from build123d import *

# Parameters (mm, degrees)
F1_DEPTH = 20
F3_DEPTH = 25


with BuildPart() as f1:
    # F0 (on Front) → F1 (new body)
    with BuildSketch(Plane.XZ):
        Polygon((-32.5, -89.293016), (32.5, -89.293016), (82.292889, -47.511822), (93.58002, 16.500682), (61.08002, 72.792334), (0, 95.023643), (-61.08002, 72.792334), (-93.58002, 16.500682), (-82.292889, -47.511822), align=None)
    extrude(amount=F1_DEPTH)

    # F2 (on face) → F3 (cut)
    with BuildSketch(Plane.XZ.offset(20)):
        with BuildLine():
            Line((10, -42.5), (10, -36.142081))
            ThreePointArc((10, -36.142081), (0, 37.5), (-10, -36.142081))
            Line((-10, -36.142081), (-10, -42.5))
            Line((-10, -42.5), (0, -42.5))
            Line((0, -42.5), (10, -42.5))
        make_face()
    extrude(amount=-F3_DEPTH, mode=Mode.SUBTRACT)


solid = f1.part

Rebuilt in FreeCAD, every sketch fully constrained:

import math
import FreeCAD as App
import Part
import Sketcher

V = App.Vector
Q = App.Units.Quantity

doc = App.newDocument("Part")
body = doc.addObject("PartDesign::Body", "Body")

# Sketch on XZ plane
sketch1 = doc.addObject("Sketcher::SketchObject", "Sketch")
body.addObject(sketch1)
sketch1.AttachmentSupport = (doc.XZ_Plane, [""])
sketch1.MapMode = "FlatFace"
sketch1.addGeometry([
    Part.LineSegment(V(-32, -89, 0), V(32, -89, 0)),  # 0
    Part.LineSegment(V(32, -89, 0), V(82, -48, 0)),  # 1
    Part.LineSegment(V(82, -48, 0), V(94, 17, 0)),  # 2
    Part.LineSegment(V(94, 17, 0), V(61, 73, 0)),  # 3
    Part.LineSegment(V(61, 73, 0), V(0, 95, 0)),  # 4
    Part.LineSegment(V(0, 95, 0), V(-61, 73, 0)),  # 5
    Part.LineSegment(V(-61, 73, 0), V(-94, 17, 0)),  # 6
    Part.LineSegment(V(-94, 17, 0), V(-82, -48, 0)),  # 7
    Part.LineSegment(V(-82, -48, 0), V(-32, -89, 0)),  # 8
], False)
sketch1.addConstraint([
    Sketcher.Constraint("Coincident", 0, 2, 1, 1),
    Sketcher.Constraint("Coincident", 1, 2, 2, 1),
    Sketcher.Constraint("Coincident", 2, 2, 3, 1),
    Sketcher.Constraint("Coincident", 3, 2, 4, 1),
    Sketcher.Constraint("Coincident", 4, 2, 5, 1),
    Sketcher.Constraint("Coincident", 5, 2, 6, 1),
    Sketcher.Constraint("Coincident", 6, 2, 7, 1),
    Sketcher.Constraint("Coincident", 7, 2, 8, 1),
    Sketcher.Constraint("Coincident", 8, 2, 0, 1),
    Sketcher.Constraint("Horizontal", 0),
    Sketcher.Constraint("Symmetric", 3, 2, 5, 2, -2),
    Sketcher.Constraint("Symmetric", 2, 2, 6, 2, -2),
    Sketcher.Constraint("Symmetric", 1, 2, 7, 2, -2),
    Sketcher.Constraint("PointOnObject", 4, 2, -2),
    Sketcher.Constraint("Equal", 1, 2),
    Sketcher.Constraint("Equal", 2, 3),
    Sketcher.Constraint("Equal", 3, 4),
    Sketcher.Constraint("Equal", 7, 8),
    Sketcher.Constraint("DistanceX", 0, 1, 0, 2, Q("65 mm")),
    Sketcher.Constraint("Angle", 1, Q("39.999999 deg")),
    Sketcher.Constraint("Angle", 2, Q("80 deg")),
    Sketcher.Constraint("Angle", 3, Q("120 deg")),
    Sketcher.Constraint("Angle", 4, Q("160 deg")),
    Sketcher.Constraint("DistanceY", 0, 2, -1, 1, Q("89.293016 mm")),
])
pad1 = doc.addObject("PartDesign::Pad", "Pad")
body.addObject(pad1)
pad1.Profile = sketch1
pad1.Length = 20

# Sketch on XZ plane
sketch2 = doc.addObject("Sketcher::SketchObject", "Sketch001")
body.addObject(sketch2)
sketch2.AttachmentSupport = (doc.XZ_Plane, [""])
sketch2.MapMode = "FlatFace"
sketch2.AttachmentOffset = App.Placement(V(0, 0, 20), App.Rotation())
sketch2.addGeometry([
    Part.LineSegment(V(10, -42, 0), V(10, -36, 0)),
    Part.ArcOfCircle(Part.Circle(V(0, 0, 0), V(0, 0, 1), 38), math.radians(-75), math.radians(255)),
    Part.LineSegment(V(-10, -36, 0), V(-10, -42, 0)),
    Part.LineSegment(V(-10, -42, 0), V(10, -42, 0)),
], False)
sketch2.addConstraint([
    Sketcher.Constraint("Coincident", 0, 2, 1, 1),
    Sketcher.Constraint("Coincident", 1, 2, 2, 1),
    Sketcher.Constraint("Coincident", 2, 2, 3, 1),
    Sketcher.Constraint("Coincident", 3, 2, 0, 1),
    Sketcher.Constraint("Vertical", 0),
    Sketcher.Constraint("Vertical", 2),
    Sketcher.Constraint("Horizontal", 3),
    Sketcher.Constraint("Coincident", 1, 3, -1, 1),
    Sketcher.Constraint("Horizontal", 0, 2, 1, 2),
    Sketcher.Constraint("Radius", 1, Q("37.5 mm")),
    Sketcher.Constraint("DistanceX", 3, 1, 3, 2, Q("20 mm")),
    Sketcher.Constraint("DistanceY", 2, 2, -1, 1, Q("42.5 mm")),
])
pocket1 = doc.addObject("PartDesign::Pocket", "Pocket")
body.addObject(pocket1)
pocket1.Profile = sketch2
pocket1.Length = 25

doc.recompute()
